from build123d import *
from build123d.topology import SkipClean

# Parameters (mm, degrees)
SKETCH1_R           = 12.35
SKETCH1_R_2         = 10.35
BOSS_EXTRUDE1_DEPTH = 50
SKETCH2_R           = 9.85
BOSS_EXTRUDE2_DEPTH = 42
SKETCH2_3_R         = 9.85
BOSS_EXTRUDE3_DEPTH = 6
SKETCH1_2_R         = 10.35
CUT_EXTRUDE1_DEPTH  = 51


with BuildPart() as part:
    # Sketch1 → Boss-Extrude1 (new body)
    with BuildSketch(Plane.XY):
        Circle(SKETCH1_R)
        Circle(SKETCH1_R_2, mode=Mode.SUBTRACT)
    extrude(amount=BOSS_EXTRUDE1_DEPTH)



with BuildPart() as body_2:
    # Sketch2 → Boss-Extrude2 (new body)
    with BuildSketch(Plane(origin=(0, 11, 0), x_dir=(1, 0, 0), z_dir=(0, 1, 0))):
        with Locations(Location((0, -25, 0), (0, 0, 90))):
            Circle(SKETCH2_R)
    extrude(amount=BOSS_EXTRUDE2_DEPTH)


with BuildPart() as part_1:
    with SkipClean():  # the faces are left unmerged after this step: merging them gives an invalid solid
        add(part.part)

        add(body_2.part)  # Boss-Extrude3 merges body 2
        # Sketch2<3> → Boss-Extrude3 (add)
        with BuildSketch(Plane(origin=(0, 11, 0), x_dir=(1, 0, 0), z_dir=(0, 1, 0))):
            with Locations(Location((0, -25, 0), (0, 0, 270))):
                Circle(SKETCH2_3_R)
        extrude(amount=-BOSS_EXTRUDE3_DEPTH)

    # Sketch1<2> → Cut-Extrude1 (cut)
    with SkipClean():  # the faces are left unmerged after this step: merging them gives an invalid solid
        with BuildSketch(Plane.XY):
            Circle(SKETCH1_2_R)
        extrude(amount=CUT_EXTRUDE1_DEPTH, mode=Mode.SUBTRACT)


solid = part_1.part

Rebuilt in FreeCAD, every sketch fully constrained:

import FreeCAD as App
import Part
import Sketcher

doc = App.newDocument("Part")
body = doc.addObject("PartDesign::Body", "Body")

sketch1 = body.newObject("Sketcher::SketchObject", "Sketch")
sketch1.AttachmentSupport = (doc.getObject("XY_Plane"), [""])
sketch1.MapMode = "FlatFace"
sketch1.addGeometry(Part.Circle(App.Vector(0, 0, 0), App.Vector(0, 0, 1), 12.35), False)
sketch1.addGeometry(Part.Circle(App.Vector(0, 0, 0), App.Vector(0, 0, 1), 10.35), False)
sketch1.addConstraint(Sketcher.Constraint("Coincident", 0, 3, -1, 1))
sketch1.addConstraint(Sketcher.Constraint("Coincident", 1, 3, -1, 1))
sketch1.addConstraint(Sketcher.Constraint("Diameter", 0, 24.7))
sketch1.addConstraint(Sketcher.Constraint("Diameter", 1, 20.7))
pad1 = body.newObject("PartDesign::Pad", "Pad")
pad1.Profile = sketch1
pad1.Length = 50
body2 = doc.addObject("PartDesign::Body", "Body001")

sketch2 = body2.newObject("Sketcher::SketchObject", "Sketch001")
sketch2.AttachmentSupport = (doc.getObject("XZ_Plane001"), [""])
sketch2.MapMode = "FlatFace"
sketch2.AttachmentOffset = App.Placement(App.Vector(0, 0, -11), App.Rotation())
sketch2.addGeometry(Part.Circle(App.Vector(0, 25, 0), App.Vector(0, 0, 1), 9.85), False)
sketch2.addConstraint(Sketcher.Constraint("PointOnObject", 0, 3, -2))
sketch2.addConstraint(Sketcher.Constraint("Diameter", 0, 19.7))
sketch2.addConstraint(Sketcher.Constraint("DistanceY", -1, 1, 0, 3, 25.0))
pad2 = body2.newObject("PartDesign::Pad", "Pad001")
pad2.Profile = sketch2
pad2.Length = 42
pad2.Reversed = True
doc.recompute()

boolean = body.newObject("PartDesign::Boolean", "Boolean")
boolean.Type = "Fuse"
boolean.addObjects([body2])

sketch3 = body.newObject("Sketcher::SketchObject", "Sketch002")
sketch3.AttachmentSupport = (doc.getObject("XZ_Plane"), [""])
sketch3.MapMode = "FlatFace"
sketch3.AttachmentOffset = App.Placement(App.Vector(0, 0, -11), App.Rotation())
sketch3.addGeometry(Part.Circle(App.Vector(0, 25, 0), App.Vector(0, 0, 1), 9.85), False)
sketch3.addConstraint(Sketcher.Constraint("PointOnObject", 0, 3, -2))
sketch3.addConstraint(Sketcher.Constraint("Diameter", 0, 19.7))
sketch3.addConstraint(Sketcher.Constraint("DistanceY", -1, 1, 0, 3, 25.0))
pad3 = body.newObject("PartDesign::Pad", "Pad002")
pad3.Profile = sketch3
pad3.Length = 6

sketch4 = body.newObject("Sketcher::SketchObject", "Sketch003")
sketch4.AttachmentSupport = (doc.getObject("XY_Plane"), [""])
sketch4.MapMode = "FlatFace"
sketch4.addGeometry(Part.Circle(App.Vector(0, 0, 0), App.Vector(0, 0, 1), 10.35), False)
sketch4.addConstraint(Sketcher.Constraint("Coincident", 0, 3, -1, 1))
sketch4.addConstraint(Sketcher.Constraint("Diameter", 0, 20.7))
pocket1 = body.newObject("PartDesign::Pocket", "Pocket")
pocket1.Profile = sketch4
pocket1.Length = 51
pocket1.Reversed = True

doc.recompute()
